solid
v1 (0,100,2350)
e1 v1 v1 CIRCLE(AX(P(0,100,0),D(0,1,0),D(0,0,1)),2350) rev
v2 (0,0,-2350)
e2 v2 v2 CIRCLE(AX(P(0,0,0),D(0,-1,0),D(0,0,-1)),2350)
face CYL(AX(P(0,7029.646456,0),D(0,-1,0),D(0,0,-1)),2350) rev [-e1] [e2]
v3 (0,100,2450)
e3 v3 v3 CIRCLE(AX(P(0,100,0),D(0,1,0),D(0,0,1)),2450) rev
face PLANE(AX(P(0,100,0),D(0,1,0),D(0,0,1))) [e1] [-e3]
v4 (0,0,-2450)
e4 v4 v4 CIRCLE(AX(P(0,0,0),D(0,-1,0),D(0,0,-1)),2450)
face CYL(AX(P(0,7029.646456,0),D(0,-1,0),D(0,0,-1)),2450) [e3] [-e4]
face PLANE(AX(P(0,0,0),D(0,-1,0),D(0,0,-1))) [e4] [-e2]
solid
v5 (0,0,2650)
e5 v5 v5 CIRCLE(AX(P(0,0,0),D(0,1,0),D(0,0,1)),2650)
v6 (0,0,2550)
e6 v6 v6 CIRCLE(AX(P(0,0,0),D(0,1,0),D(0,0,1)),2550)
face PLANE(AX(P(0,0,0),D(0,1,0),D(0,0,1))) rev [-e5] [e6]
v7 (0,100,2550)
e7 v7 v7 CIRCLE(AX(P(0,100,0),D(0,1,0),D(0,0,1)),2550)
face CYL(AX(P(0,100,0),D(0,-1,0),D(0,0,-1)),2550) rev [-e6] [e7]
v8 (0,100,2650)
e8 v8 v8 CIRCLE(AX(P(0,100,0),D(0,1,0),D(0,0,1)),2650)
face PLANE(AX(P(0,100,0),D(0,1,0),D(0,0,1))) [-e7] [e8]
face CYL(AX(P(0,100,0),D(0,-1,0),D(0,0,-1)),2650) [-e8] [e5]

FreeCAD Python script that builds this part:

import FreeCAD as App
import Part
import Sketcher
Q = App.Units.Quantity

doc = App.newDocument("Part")
body = doc.addObject("PartDesign::Body", "Body")

# Sketch on XZ plane
sketch1 = body.newObject("Sketcher::SketchObject", "Sketch")
sketch1.AttachmentSupport = (doc.getObject("XZ_Plane"), [""])
sketch1.MapMode = "FlatFace"
sketch1.addGeometry(Part.Circle(App.Vector(0, 0, 0), App.Vector(0, 0, 1), 2650), False)
sketch1.addGeometry(Part.Circle(App.Vector(0, 0, 0), App.Vector(0, 0, 1), 2550), False)
sketch1.addConstraint(Sketcher.Constraint("Coincident", 0, 3, -1, 1))
sketch1.addConstraint(Sketcher.Constraint("Coincident", 1, 3, -1, 1))
sketch1.addConstraint(Sketcher.Constraint("Diameter", 0, Q("5300 mm")))
sketch1.addConstraint(Sketcher.Constraint("Diameter", 1, Q("5100 mm")))
pad1 = body.newObject("PartDesign::Pad", "Pad")
pad1.Profile = sketch1
pad1.Length = 100
pad1.Reversed = True
body2 = doc.addObject("PartDesign::Body", "Body001")

# Sketch on XZ plane
sketch2 = body2.newObject("Sketcher::SketchObject", "Sketch001")
sketch2.AttachmentSupport = (doc.getObject("XZ_Plane001"), [""])
sketch2.MapMode = "FlatFace"
sketch2.AttachmentOffset = App.Placement(App.Vector(0, 0, -100), App.Rotation())
sketch2.addGeometry(Part.Circle(App.Vector(0, 0, 0), App.Vector(0, 0, 1), 2450), False)
sketch2.addGeometry(Part.Circle(App.Vector(0, 0, 0), App.Vector(0, 0, 1), 2350), False)
sketch2.addConstraint(Sketcher.Constraint("Coincident", 0, 3, -1, 1))
sketch2.addConstraint(Sketcher.Constraint("Coincident", 1, 3, -1, 1))
sketch2.addConstraint(Sketcher.Constraint("Diameter", 0, Q("4900 mm")))
sketch2.addConstraint(Sketcher.Constraint("Diameter", 1, Q("4700 mm")))
pad2 = body2.newObject("PartDesign::Pad", "Pad001")
pad2.Profile = sketch2
pad2.Length = 100

doc.recompute()
